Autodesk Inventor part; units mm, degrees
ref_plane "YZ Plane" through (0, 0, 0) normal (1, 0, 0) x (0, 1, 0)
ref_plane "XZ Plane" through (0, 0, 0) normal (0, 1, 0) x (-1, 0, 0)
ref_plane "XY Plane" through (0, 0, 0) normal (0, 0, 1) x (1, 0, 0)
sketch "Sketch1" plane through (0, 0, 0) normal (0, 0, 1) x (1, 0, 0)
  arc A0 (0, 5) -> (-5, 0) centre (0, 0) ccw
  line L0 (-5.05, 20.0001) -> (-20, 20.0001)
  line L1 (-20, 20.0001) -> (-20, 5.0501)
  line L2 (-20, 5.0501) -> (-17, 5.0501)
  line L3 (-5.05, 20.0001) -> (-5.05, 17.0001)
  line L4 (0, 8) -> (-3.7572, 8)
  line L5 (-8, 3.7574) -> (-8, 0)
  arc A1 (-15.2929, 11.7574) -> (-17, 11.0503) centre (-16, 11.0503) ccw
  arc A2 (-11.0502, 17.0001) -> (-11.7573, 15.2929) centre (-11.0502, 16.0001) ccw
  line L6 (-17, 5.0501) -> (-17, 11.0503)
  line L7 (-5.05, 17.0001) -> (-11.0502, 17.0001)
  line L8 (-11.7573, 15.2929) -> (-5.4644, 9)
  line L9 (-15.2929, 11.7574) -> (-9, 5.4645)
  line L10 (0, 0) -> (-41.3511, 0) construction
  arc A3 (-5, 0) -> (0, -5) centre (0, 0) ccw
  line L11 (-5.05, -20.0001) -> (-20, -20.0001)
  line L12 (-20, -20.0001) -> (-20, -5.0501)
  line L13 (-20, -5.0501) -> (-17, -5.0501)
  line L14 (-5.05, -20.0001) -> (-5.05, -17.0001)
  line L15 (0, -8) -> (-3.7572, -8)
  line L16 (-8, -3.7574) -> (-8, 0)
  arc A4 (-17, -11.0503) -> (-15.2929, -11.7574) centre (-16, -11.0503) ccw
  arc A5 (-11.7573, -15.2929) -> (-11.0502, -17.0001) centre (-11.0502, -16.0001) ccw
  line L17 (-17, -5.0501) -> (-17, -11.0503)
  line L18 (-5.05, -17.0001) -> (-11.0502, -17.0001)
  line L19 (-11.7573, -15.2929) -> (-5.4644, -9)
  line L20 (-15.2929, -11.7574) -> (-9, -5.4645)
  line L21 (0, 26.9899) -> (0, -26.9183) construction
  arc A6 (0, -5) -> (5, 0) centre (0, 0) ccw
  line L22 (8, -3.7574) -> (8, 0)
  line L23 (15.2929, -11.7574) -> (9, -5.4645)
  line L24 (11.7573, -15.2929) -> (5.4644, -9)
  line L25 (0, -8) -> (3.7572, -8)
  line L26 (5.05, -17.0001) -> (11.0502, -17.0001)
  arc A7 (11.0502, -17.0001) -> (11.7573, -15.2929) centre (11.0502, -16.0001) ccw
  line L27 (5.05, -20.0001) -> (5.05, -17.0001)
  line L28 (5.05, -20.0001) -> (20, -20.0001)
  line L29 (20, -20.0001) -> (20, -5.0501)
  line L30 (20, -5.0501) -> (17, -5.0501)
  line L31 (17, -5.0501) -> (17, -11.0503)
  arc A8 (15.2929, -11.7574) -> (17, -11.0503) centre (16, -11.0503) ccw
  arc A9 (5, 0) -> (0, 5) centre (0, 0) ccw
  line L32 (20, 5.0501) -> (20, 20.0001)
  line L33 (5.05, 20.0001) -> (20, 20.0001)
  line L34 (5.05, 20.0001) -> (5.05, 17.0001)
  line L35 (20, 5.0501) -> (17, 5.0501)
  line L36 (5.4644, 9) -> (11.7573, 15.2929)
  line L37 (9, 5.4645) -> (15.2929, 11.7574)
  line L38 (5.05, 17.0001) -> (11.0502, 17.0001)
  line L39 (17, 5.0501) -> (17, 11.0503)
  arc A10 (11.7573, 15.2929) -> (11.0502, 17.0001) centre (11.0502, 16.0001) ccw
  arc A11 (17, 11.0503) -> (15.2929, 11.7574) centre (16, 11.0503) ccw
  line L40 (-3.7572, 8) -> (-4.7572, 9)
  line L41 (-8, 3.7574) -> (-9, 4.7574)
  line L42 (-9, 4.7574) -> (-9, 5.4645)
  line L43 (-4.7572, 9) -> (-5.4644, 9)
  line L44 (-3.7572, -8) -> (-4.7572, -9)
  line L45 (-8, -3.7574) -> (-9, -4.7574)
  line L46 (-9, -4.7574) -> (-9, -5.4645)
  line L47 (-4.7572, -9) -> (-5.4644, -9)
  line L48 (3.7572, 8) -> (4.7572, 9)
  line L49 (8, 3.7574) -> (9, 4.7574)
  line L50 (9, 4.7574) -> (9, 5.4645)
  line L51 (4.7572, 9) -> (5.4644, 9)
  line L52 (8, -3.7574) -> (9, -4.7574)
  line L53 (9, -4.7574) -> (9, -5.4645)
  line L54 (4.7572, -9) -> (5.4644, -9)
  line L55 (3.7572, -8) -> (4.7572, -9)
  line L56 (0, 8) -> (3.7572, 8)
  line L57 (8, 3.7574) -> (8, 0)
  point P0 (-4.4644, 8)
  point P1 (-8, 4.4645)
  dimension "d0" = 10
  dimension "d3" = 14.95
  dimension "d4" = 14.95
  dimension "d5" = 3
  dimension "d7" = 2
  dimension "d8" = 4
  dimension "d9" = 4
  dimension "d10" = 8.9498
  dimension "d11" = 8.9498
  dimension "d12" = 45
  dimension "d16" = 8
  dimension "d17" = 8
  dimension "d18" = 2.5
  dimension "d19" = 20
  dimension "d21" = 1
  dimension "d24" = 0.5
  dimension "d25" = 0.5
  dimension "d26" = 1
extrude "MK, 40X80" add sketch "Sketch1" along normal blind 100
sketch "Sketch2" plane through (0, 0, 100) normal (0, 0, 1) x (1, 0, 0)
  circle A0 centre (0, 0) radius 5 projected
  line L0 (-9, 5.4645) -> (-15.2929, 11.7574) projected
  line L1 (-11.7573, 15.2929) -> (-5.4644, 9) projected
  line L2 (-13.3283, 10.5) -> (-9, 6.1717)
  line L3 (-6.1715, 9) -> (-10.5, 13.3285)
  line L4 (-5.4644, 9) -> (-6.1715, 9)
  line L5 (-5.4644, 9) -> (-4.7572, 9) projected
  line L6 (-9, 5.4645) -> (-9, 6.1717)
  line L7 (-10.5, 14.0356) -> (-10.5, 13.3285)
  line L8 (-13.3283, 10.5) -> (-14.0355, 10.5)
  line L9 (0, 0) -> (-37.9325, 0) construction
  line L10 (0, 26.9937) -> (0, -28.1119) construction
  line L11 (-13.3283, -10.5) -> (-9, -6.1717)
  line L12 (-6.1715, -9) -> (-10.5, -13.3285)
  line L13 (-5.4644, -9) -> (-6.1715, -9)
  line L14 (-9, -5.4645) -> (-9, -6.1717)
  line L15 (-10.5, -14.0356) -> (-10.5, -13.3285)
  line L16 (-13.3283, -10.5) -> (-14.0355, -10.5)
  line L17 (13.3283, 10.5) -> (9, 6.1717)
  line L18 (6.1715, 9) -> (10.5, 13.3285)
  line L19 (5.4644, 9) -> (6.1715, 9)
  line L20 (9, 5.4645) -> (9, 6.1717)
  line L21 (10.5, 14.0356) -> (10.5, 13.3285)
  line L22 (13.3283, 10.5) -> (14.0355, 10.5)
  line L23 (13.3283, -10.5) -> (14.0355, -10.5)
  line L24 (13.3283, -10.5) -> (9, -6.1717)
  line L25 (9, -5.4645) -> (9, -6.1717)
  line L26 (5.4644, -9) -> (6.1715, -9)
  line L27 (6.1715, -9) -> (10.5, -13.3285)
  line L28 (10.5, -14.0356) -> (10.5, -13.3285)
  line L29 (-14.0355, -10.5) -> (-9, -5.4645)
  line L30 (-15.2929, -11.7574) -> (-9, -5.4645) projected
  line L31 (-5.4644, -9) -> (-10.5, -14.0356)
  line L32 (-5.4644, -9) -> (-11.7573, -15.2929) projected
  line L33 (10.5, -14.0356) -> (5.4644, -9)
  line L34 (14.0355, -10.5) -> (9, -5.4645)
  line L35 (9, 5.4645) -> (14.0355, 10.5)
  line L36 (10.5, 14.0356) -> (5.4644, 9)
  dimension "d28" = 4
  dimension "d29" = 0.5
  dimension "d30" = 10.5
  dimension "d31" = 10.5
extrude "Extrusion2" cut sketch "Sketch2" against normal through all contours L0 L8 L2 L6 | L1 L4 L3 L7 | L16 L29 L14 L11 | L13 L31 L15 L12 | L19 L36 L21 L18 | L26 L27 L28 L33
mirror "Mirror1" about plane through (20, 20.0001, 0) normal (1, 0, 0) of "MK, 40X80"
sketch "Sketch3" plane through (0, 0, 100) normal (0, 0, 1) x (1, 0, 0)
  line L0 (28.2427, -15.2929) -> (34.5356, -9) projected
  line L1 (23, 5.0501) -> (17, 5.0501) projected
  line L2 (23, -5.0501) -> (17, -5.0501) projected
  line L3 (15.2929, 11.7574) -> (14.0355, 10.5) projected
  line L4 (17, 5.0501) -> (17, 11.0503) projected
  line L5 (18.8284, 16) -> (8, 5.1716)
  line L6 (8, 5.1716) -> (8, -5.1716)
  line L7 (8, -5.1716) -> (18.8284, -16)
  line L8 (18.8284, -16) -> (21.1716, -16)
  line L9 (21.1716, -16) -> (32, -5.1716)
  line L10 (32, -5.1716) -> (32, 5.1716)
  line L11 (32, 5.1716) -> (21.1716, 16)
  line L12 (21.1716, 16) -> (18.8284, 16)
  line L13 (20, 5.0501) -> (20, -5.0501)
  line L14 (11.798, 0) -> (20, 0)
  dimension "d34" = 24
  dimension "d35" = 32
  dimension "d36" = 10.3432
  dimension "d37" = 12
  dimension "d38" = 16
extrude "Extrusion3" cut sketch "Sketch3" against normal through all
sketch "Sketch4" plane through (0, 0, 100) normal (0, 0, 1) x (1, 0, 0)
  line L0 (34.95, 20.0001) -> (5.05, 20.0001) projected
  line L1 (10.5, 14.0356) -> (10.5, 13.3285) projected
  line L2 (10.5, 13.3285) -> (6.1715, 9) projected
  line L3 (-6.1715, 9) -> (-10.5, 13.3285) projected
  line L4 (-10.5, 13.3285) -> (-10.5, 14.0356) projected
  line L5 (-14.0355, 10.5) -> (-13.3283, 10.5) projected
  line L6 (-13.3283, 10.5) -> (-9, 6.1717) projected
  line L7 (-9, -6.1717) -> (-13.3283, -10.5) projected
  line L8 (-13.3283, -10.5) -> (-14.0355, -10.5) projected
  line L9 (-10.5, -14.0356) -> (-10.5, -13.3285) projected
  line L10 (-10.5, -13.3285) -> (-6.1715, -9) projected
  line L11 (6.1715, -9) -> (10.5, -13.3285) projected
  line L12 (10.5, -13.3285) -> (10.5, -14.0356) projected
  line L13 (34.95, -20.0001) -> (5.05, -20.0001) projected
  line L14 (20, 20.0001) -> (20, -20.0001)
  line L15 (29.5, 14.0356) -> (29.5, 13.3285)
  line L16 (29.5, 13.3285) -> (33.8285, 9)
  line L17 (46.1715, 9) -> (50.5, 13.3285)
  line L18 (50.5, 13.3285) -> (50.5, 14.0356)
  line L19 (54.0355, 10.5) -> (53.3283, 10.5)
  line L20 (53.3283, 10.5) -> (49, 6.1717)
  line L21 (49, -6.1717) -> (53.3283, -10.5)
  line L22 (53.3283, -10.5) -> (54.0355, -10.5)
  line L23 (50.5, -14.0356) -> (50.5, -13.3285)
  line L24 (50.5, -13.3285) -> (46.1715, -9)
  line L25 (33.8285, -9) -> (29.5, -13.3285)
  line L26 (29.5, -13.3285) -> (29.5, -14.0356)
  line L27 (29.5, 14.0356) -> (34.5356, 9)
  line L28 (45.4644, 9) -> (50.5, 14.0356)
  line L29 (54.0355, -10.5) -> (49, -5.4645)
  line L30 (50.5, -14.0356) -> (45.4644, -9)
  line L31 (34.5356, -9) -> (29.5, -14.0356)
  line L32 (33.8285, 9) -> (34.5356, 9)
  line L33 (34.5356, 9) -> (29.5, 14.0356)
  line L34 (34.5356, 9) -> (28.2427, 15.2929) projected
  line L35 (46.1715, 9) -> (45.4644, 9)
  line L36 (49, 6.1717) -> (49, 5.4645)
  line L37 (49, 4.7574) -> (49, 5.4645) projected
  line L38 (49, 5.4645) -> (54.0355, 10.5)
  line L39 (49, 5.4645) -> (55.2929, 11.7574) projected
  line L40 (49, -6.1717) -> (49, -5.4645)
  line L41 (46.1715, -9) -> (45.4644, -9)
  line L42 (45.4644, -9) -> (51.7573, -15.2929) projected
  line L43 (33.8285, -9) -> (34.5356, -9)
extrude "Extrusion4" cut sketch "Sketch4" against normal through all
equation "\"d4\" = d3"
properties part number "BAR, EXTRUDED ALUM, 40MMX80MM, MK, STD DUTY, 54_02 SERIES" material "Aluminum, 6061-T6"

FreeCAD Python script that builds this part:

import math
import FreeCAD as App
import Part
import Sketcher
from FreeCAD import Vector

doc = App.newDocument("Part")
params = doc.addObject("Spreadsheet::Sheet", "Params")
for row, (alias, value) in enumerate([
    ("sketch1_diameter", "10 mm"),
    ("sketch1_radius", "1 mm"),
    ("sketch1_width", "3 mm"),
    ("sketch1_width2", "14.95 mm"),
    ("pad1_length", "100 mm"),
], start=1):
    params.set(f"A{row}", alias)
    params.set(f"B{row}", "=" + value)
    params.setAlias(f"B{row}", alias)

body = doc.addObject("PartDesign::Body", "Body")

# Sketch on XY plane
sketch1 = body.newObject("Sketcher::SketchObject", "Sketch")
sketch1.AttachmentSupport = (doc.getObject("XY_Plane"), [""])
sketch1.MapMode = "FlatFace"
sketch1.addGeometry(Part.LineSegment(Vector(-5.05, 17.0001, 0), Vector(-5.05, 20.0001, 0)), False)
sketch1.addGeometry(Part.LineSegment(Vector(-5.05, 20.0001, 0), Vector(-20, 20.0001, 0)), False)
sketch1.addGeometry(Part.LineSegment(Vector(-20, 20.0001, 0), Vector(-20, 5.0501, 0)), False)
sketch1.addGeometry(Part.LineSegment(Vector(-20, 5.0501, 0), Vector(-17, 5.0501, 0)), False)
sketch1.addGeometry(Part.LineSegment(Vector(-17, 5.0501, 0), Vector(-17, 11.0503, 0)), False)
sketch1.addGeometry(Part.ArcOfCircle(Part.Circle(Vector(-16, 11.0503, 0), Vector(0, 0, 1), 0.99999), math.radians(45), math.radians(180)), False)
sketch1.addGeometry(Part.LineSegment(Vector(-15.2929, 11.7574, 0), Vector(-9, 5.4645, 0)), False)
sketch1.addGeometry(Part.LineSegment(Vector(-9, 5.4645, 0), Vector(-9, 4.7574, 0)), False)
sketch1.addGeometry(Part.LineSegment(Vector(-9, 4.7574, 0), Vector(-8, 3.7574, 0)), False)
sketch1.addGeometry(Part.LineSegment(Vector(-8, 3.7574, 0), Vector(-8, -3.7574, 0)), False)
sketch1.addGeometry(Part.LineSegment(Vector(-8, -3.7574, 0), Vector(-9, -4.7574, 0)), False)
sketch1.addGeometry(Part.LineSegment(Vector(-9, -4.7574, 0), Vector(-9, -5.4645, 0)), False)
sketch1.addGeometry(Part.LineSegment(Vector(-9, -5.4645, 0), Vector(-15.2929, -11.7574, 0)), False)
sketch1.addGeometry(Part.ArcOfCircle(Part.Circle(Vector(-16, -11.0503, 0), Vector(0, 0, 1), 1), math.radians(180), math.radians(315)), False)
sketch1.addGeometry(Part.LineSegment(Vector(-17, -11.0503, 0), Vector(-17, -5.0501, 0)), False)
sketch1.addGeometry(Part.LineSegment(Vector(-17, -5.0501, 0), Vector(-20, -5.0501, 0)), False)
sketch1.addGeometry(Part.LineSegment(Vector(-20, -5.0501, 0), Vector(-20, -20.0001, 0)), False)
sketch1.addGeometry(Part.LineSegment(Vector(-20, -20.0001, 0), Vector(-5.05, -20.0001, 0)), False)
sketch1.addGeometry(Part.LineSegment(Vector(-5.05, -20.0001, 0), Vector(-5.05, -17.0001, 0)), False)
sketch1.addGeometry(Part.LineSegment(Vector(-5.05, -17.0001, 0), Vector(-11.0502, -17.0001, 0)), False)
sketch1.addGeometry(Part.ArcOfCircle(Part.Circle(Vector(-11.0502, -16.0001, 0), Vector(0, 0, 1), 1.000061), math.radians(134.995949), math.radians(270)), False)
sketch1.addGeometry(Part.LineSegment(Vector(-11.7573, -15.2929, 0), Vector(-5.4644, -9, 0)), False)
sketch1.addGeometry(Part.LineSegment(Vector(-5.4644, -9, 0), Vector(-4.7572, -9, 0)), False)
sketch1.addGeometry(Part.LineSegment(Vector(-4.7572, -9, 0), Vector(-3.7572, -8, 0)), False)
sketch1.addGeometry(Part.LineSegment(Vector(-3.7572, -8, 0), Vector(3.7572, -8, 0)), False)
sketch1.addGeometry(Part.LineSegment(Vector(3.7572, -8, 0), Vector(4.7572, -9, 0)), False)
sketch1.addGeometry(Part.LineSegment(Vector(4.7572, -9, 0), Vector(5.4644, -9, 0)), False)
sketch1.addGeometry(Part.LineSegment(Vector(5.4644, -9, 0), Vector(11.7573, -15.2929, 0)), False)
sketch1.addGeometry(Part.ArcOfCircle(Part.Circle(Vector(11.0502, -16.0001, 0), Vector(0, 0, 1), 1), math.radians(-90), math.radians(45.004051)), False)
sketch1.addGeometry(Part.LineSegment(Vector(11.0502, -17.0001, 0), Vector(5.05, -17.0001, 0)), False)
sketch1.addGeometry(Part.LineSegment(Vector(5.05, -17.0001, 0), Vector(5.05, -20.0001, 0)), False)
sketch1.addGeometry(Part.LineSegment(Vector(5.05, -20.0001, 0), Vector(20, -20.0001, 0)), False)
sketch1.addGeometry(Part.LineSegment(Vector(20, -20.0001, 0), Vector(20, -5.0501, 0)), False)
sketch1.addGeometry(Part.LineSegment(Vector(20, -5.0501, 0), Vector(17, -5.0501, 0)), False)
sketch1.addGeometry(Part.LineSegment(Vector(17, -5.0501, 0), Vector(17, -11.0503, 0)), False)
sketch1.addGeometry(Part.ArcOfCircle(Part.Circle(Vector(16, -11.0503, 0), Vector(0, 0, 1), 0.99999), math.radians(-135), math.radians(0)), False)
sketch1.addGeometry(Part.LineSegment(Vector(15.2929, -11.7574, 0), Vector(9, -5.4645, 0)), False)
sketch1.addGeometry(Part.LineSegment(Vector(9, -5.4645, 0), Vector(9, -4.7574, 0)), False)
sketch1.addGeometry(Part.LineSegment(Vector(9, -4.7574, 0), Vector(8, -3.7574, 0)), False)
sketch1.addGeometry(Part.LineSegment(Vector(8, -3.7574, 0), Vector(8, 3.7574, 0)), False)
sketch1.addGeometry(Part.LineSegment(Vector(8, 3.7574, 0), Vector(9, 4.7574, 0)), False)
sketch1.addGeometry(Part.LineSegment(Vector(9, 4.7574, 0), Vector(9, 5.4645, 0)), False)
sketch1.addGeometry(Part.LineSegment(Vector(9, 5.4645, 0), Vector(15.2929, 11.7574, 0)), False)
sketch1.addGeometry(Part.ArcOfCircle(Part.Circle(Vector(16, 11.0503, 0), Vector(0, 0, 1), 1), math.radians(0), math.radians(135)), False)
sketch1.addGeometry(Part.LineSegment(Vector(17, 11.0503, 0), Vector(17, 5.0501, 0)), False)
sketch1.addGeometry(Part.LineSegment(Vector(17, 5.0501, 0), Vector(20, 5.0501, 0)), False)
sketch1.addGeometry(Part.LineSegment(Vector(20, 5.0501, 0), Vector(20, 20.0001, 0)), False)
sketch1.addGeometry(Part.LineSegment(Vector(20, 20.0001, 0), Vector(5.05, 20.0001, 0)), False)
sketch1.addGeometry(Part.LineSegment(Vector(5.05, 20.0001, 0), Vector(5.05, 17.0001, 0)), False)
sketch1.addGeometry(Part.LineSegment(Vector(5.05, 17.0001, 0), Vector(11.0502, 17.0001, 0)), False)
sketch1.addGeometry(Part.ArcOfCircle(Part.Circle(Vector(11.0502, 16.0001, 0), Vector(0, 0, 1), 1.000061), math.radians(-45.004051), math.radians(90)), False)
sketch1.addGeometry(Part.LineSegment(Vector(11.7573, 15.2929, 0), Vector(5.4644, 9, 0)), False)
sketch1.addGeometry(Part.LineSegment(Vector(5.4644, 9, 0), Vector(4.7572, 9, 0)), False)
sketch1.addGeometry(Part.LineSegment(Vector(4.7572, 9, 0), Vector(3.7572, 8, 0)), False)
sketch1.addGeometry(Part.LineSegment(Vector(3.7572, 8, 0), Vector(-3.7572, 8, 0)), False)
sketch1.addGeometry(Part.LineSegment(Vector(-3.7572, 8, 0), Vector(-4.7572, 9, 0)), False)
sketch1.addGeometry(Part.LineSegment(Vector(-4.7572, 9, 0), Vector(-5.4644, 9, 0)), False)
sketch1.addGeometry(Part.LineSegment(Vector(-5.4644, 9, 0), Vector(-11.7573, 15.2929, 0)), False)
sketch1.addGeometry(Part.ArcOfCircle(Part.Circle(Vector(-11.0502, 16.0001, 0), Vector(0, 0, 1), 1), math.radians(90), math.radians(225.004051)), False)
sketch1.addGeometry(Part.LineSegment(Vector(-11.0502, 17.0001, 0), Vector(-5.05, 17.0001, 0)), False)
sketch1.addGeometry(Part.Circle(Vector(0, 0, 0), Vector(0, 0, 1), 5), False)
sketch1.addConstraint(Sketcher.Constraint("Coincident", 0, 2, 1, 1))
sketch1.addConstraint(Sketcher.Constraint("Coincident", 1, 2, 2, 1))
sketch1.addConstraint(Sketcher.Constraint("Coincident", 2, 2, 3, 1))
sketch1.addConstraint(Sketcher.Constraint("Coincident", 3, 2, 4, 1))
sketch1.addConstraint(Sketcher.Constraint("Tangent", 4, 2, 5, 2))
sketch1.addConstraint(Sketcher.Constraint("Tangent", 5, 1, 6, 1))
sketch1.addConstraint(Sketcher.Constraint("Coincident", 6, 2, 7, 1))
sketch1.addConstraint(Sketcher.Constraint("Coincident", 7, 2, 8, 1))
sketch1.addConstraint(Sketcher.Constraint("Coincident", 8, 2, 9, 1))
sketch1.addConstraint(Sketcher.Constraint("Coincident", 9, 2, 10, 1))
sketch1.addConstraint(Sketcher.Constraint("Coincident", 10, 2, 11, 1))
sketch1.addConstraint(Sketcher.Constraint("Coincident", 11, 2, 12, 1))
sketch1.addConstraint(Sketcher.Constraint("Tangent", 12, 2, 13, 2))
sketch1.addConstraint(Sketcher.Constraint("Tangent", 13, 1, 14, 1))
sketch1.addConstraint(Sketcher.Constraint("Coincident", 14, 2, 15, 1))
sketch1.addConstraint(Sketcher.Constraint("Coincident", 15, 2, 16, 1))
sketch1.addConstraint(Sketcher.Constraint("Coincident", 16, 2, 17, 1))
sketch1.addConstraint(Sketcher.Constraint("Coincident", 17, 2, 18, 1))
sketch1.addConstraint(Sketcher.Constraint("Coincident", 18, 2, 19, 1))
sketch1.addConstraint(Sketcher.Constraint("Tangent", 19, 2, 20, 2))
sketch1.addConstraint(Sketcher.Constraint("Tangent", 20, 1, 21, 1))
sketch1.addConstraint(Sketcher.Constraint("Coincident", 21, 2, 22, 1))
sketch1.addConstraint(Sketcher.Constraint("Coincident", 22, 2, 23, 1))
sketch1.addConstraint(Sketcher.Constraint("Coincident", 23, 2, 24, 1))
sketch1.addConstraint(Sketcher.Constraint("Coincident", 24, 2, 25, 1))
sketch1.addConstraint(Sketcher.Constraint("Coincident", 25, 2, 26, 1))
sketch1.addConstraint(Sketcher.Constraint("Coincident", 26, 2, 27, 1))
sketch1.addConstraint(Sketcher.Constraint("Tangent", 27, 2, 28, 2))
sketch1.addConstraint(Sketcher.Constraint("Tangent", 28, 1, 29, 1))
sketch1.addConstraint(Sketcher.Constraint("Coincident", 29, 2, 30, 1))
sketch1.addConstraint(Sketcher.Constraint("Coincident", 30, 2, 31, 1))
sketch1.addConstraint(Sketcher.Constraint("Coincident", 31, 2, 32, 1))
sketch1.addConstraint(Sketcher.Constraint("Coincident", 32, 2, 33, 1))
sketch1.addConstraint(Sketcher.Constraint("Coincident", 33, 2, 34, 1))
sketch1.addConstraint(Sketcher.Constraint("Tangent", 34, 2, 35, 2))
sketch1.addConstraint(Sketcher.Constraint("Tangent", 35, 1, 36, 1))
sketch1.addConstraint(Sketcher.Constraint("Coincident", 36, 2, 37, 1))
sketch1.addConstraint(Sketcher.Constraint("Coincident", 37, 2, 38, 1))
sketch1.addConstraint(Sketcher.Constraint("Coincident", 38, 2, 39, 1))
sketch1.addConstraint(Sketcher.Constraint("Coincident", 39, 2, 40, 1))
sketch1.addConstraint(Sketcher.Constraint("Coincident", 40, 2, 41, 1))
sketch1.addConstraint(Sketcher.Constraint("Coincident", 41, 2, 42, 1))
sketch1.addConstraint(Sketcher.Constraint("Tangent", 42, 2, 43, 2))
sketch1.addConstraint(Sketcher.Constraint("Tangent", 43, 1, 44, 1))
sketch1.addConstraint(Sketcher.Constraint("Coincident", 44, 2, 45, 1))
sketch1.addConstraint(Sketcher.Constraint("Coincident", 45, 2, 46, 1))
sketch1.addConstraint(Sketcher.Constraint("Coincident", 46, 2, 47, 1))
sketch1.addConstraint(Sketcher.Constraint("Coincident", 47, 2, 48, 1))
sketch1.addConstraint(Sketcher.Constraint("Coincident", 48, 2, 49, 1))
sketch1.addConstraint(Sketcher.Constraint("Tangent", 49, 2, 50, 2))
sketch1.addConstraint(Sketcher.Constraint("Tangent", 50, 1, 51, 1))
sketch1.addConstraint(Sketcher.Constraint("Coincident", 51, 2, 52, 1))
sketch1.addConstraint(Sketcher.Constraint("Coincident", 52, 2, 53, 1))
sketch1.addConstraint(Sketcher.Constraint("Coincident", 53, 2, 54, 1))
sketch1.addConstraint(Sketcher.Constraint("Coincident", 54, 2, 55, 1))
sketch1.addConstraint(Sketcher.Constraint("Coincident", 55, 2, 56, 1))
sketch1.addConstraint(Sketcher.Constraint("Coincident", 56, 2, 57, 1))
sketch1.addConstraint(Sketcher.Constraint("Tangent", 57, 2, 58, 2))
sketch1.addConstraint(Sketcher.Constraint("Tangent", 58, 1, 59, 1))
sketch1.addConstraint(Sketcher.Constraint("Coincident", 59, 2, 0, 1))
sketch1.addConstraint(Sketcher.Constraint("Vertical", 0))
sketch1.addConstraint(Sketcher.Constraint("Horizontal", 1))
sketch1.addConstraint(Sketcher.Constraint("Vertical", 2))
sketch1.addConstraint(Sketcher.Constraint("Horizontal", 3))
sketch1.addConstraint(Sketcher.Constraint("Vertical", 4))
sketch1.addConstraint(Sketcher.Constraint("Vertical", 7))
sketch1.addConstraint(Sketcher.Constraint("Vertical", 9))
sketch1.addConstraint(Sketcher.Constraint("Vertical", 11))
sketch1.addConstraint(Sketcher.Constraint("Vertical", 14))
sketch1.addConstraint(Sketcher.Constraint("Horizontal", 15))
sketch1.addConstraint(Sketcher.Constraint("Vertical", 16))
sketch1.addConstraint(Sketcher.Constraint("Horizontal", 17))
sketch1.addConstraint(Sketcher.Constraint("Vertical", 18))
sketch1.addConstraint(Sketcher.Constraint("Horizontal", 19))
sketch1.addConstraint(Sketcher.Constraint("Horizontal", 22))
sketch1.addConstraint(Sketcher.Constraint("Horizontal", 24))
sketch1.addConstraint(Sketcher.Constraint("Horizontal", 26))
sketch1.addConstraint(Sketcher.Constraint("Horizontal", 29))
sketch1.addConstraint(Sketcher.Constraint("Vertical", 30))
sketch1.addConstraint(Sketcher.Constraint("Horizontal", 31))
sketch1.addConstraint(Sketcher.Constraint("Vertical", 32))
sketch1.addConstraint(Sketcher.Constraint("Horizontal", 33))
sketch1.addConstraint(Sketcher.Constraint("Vertical", 34))
sketch1.addConstraint(Sketcher.Constraint("Vertical", 37))
sketch1.addConstraint(Sketcher.Constraint("Vertical", 39))
sketch1.addConstraint(Sketcher.Constraint("Vertical", 41))
sketch1.addConstraint(Sketcher.Constraint("Vertical", 44))
sketch1.addConstraint(Sketcher.Constraint("Horizontal", 45))
sketch1.addConstraint(Sketcher.Constraint("Vertical", 46))
sketch1.addConstraint(Sketcher.Constraint("Horizontal", 47))
sketch1.addConstraint(Sketcher.Constraint("Vertical", 48))
sketch1.addConstraint(Sketcher.Constraint("Horizontal", 49))
sketch1.addConstraint(Sketcher.Constraint("Horizontal", 52))
sketch1.addConstraint(Sketcher.Constraint("Horizontal", 54))
sketch1.addConstraint(Sketcher.Constraint("Horizontal", 56))
sketch1.addConstraint(Sketcher.Constraint("Horizontal", 59))
sketch1.addConstraint(Sketcher.Constraint("Coincident", 60, 3, -1, 1))
sketch1.addConstraint(Sketcher.Constraint("Equal", 5, 13))
sketch1.addConstraint(Sketcher.Constraint("Equal", 13, 20))
sketch1.addConstraint(Sketcher.Constraint("Equal", 20, 28))
sketch1.addConstraint(Sketcher.Constraint("Equal", 28, 35))
sketch1.addConstraint(Sketcher.Constraint("Equal", 35, 43))
sketch1.addConstraint(Sketcher.Constraint("Equal", 43, 50))
sketch1.addConstraint(Sketcher.Constraint("Equal", 50, 58))
sketch1.addConstraint(Sketcher.Constraint("Symmetric", 5, 3, 35, 3, -1, 1))
sketch1.addConstraint(Sketcher.Constraint("Symmetric", 13, 3, 43, 3, -1, 1))
sketch1.addConstraint(Sketcher.Constraint("Symmetric", 20, 3, 50, 3, -1, 1))
sketch1.addConstraint(Sketcher.Constraint("Symmetric", 28, 3, 58, 3, -1, 1))
sketch1.addConstraint(Sketcher.Constraint("Symmetric", 0, 2, 30, 2, -1, 1))
sketch1.addConstraint(Sketcher.Constraint("Symmetric", 2, 2, 32, 2, -1, 1))
sketch1.addConstraint(Sketcher.Constraint("Symmetric", 6, 2, 36, 2, -1, 1))
sketch1.addConstraint(Sketcher.Constraint("Symmetric", 8, 2, 38, 2, -1, 1))
sketch1.addConstraint(Sketcher.Constraint("Symmetric", 10, 2, 40, 2, -1, 1))
sketch1.addConstraint(Sketcher.Constraint("Symmetric", 15, 2, 45, 2, -1, 1))
sketch1.addConstraint(Sketcher.Constraint("Symmetric", 17, 2, 47, 2, -1, 1))
sketch1.addConstraint(Sketcher.Constraint("Symmetric", 21, 2, 51, 2, -1, 1))
sketch1.addConstraint(Sketcher.Constraint("Symmetric", 23, 2, 53, 2, -1, 1))
sketch1.addConstraint(Sketcher.Constraint("Symmetric", 25, 2, 55, 2, -1, 1))
sketch1.addConstraint(Sketcher.Constraint("Symmetric", 20, 3, 28, 3, -2))
sketch1.addConstraint(Sketcher.Constraint("Symmetric", 13, 3, 35, 3, -2))
sketch1.addConstraint(Sketcher.Constraint("Symmetric", 22, 2, 25, 2, -2))
sketch1.addConstraint(Sketcher.Constraint("Symmetric", 17, 2, 30, 2, -2))
sketch1.addConstraint(Sketcher.Constraint("Symmetric", 15, 2, 32, 2, -2))
sketch1.addConstraint(Sketcher.Constraint("Symmetric", 11, 2, 36, 2, -2))
sketch1.addConstraint(Sketcher.Constraint("Parallel", 6, 8))
sketch1.addConstraint(Sketcher.Constraint("Perpendicular", 8, 10))
sketch1.addConstraint(Sketcher.Constraint("Parallel", 10, 12))
sketch1.addConstraint(Sketcher.Constraint("Parallel", 12, 21))
sketch1.addConstraint(Sketcher.Constraint("Parallel", 21, 23))
sketch1.addConstraint(Sketcher.Constraint("Perpendicular", 23, 25))
sketch1.addConstraint(Sketcher.Constraint("Parallel", 25, 27))
sketch1.addConstraint(Sketcher.Constraint("Parallel", 36, 38))
sketch1.addConstraint(Sketcher.Constraint("Perpendicular", 38, 40))
sketch1.addConstraint(Sketcher.Constraint("Parallel", 40, 42))
sketch1.addConstraint(Sketcher.Constraint("Parallel", 51, 53))
sketch1.addConstraint(Sketcher.Constraint("Perpendicular", 53, 55))
sketch1.addConstraint(Sketcher.Constraint("Parallel", 55, 57))
sketch1.addConstraint(Sketcher.Constraint("Horizontal", 10, 2, 37, 2))
sketch1.addConstraint(Sketcher.Constraint("Equal", 45, 0))
sketch1.addConstraint(Sketcher.Constraint("Equal", 47, 2))
sketch1.addConstraint(Sketcher.Constraint("Equal", 59, 4))
sketch1.addConstraint(Sketcher.Constraint("Equal", 56, 7))
sketch1.addConstraint(Sketcher.Constraint("Equal", 12, 21))
sketch1.addConstraint(Sketcher.Constraint("Equal", 10, 23))
sketch1.addConstraint(Sketcher.Constraint("Diameter", 60, 10.0))
sketch1.addConstraint(Sketcher.Constraint("Radius", 5, 1.0))
sketch1.addConstraint(Sketcher.Constraint("DistanceX", 3, 1, 3, 2, 3.0))
sketch1.addConstraint(Sketcher.Constraint("DistanceY", -1, 1, 0, 2, 20.0))
sketch1.addConstraint(Sketcher.Constraint("DistanceX", 1, 2, -1, 1, 20.0))
sketch1.addConstraint(Sketcher.Constraint("DistanceX", 8, 2, -1, 1, 8.0))
sketch1.addConstraint(Sketcher.Constraint("DistanceX", 1, 2, 1, 1, 14.95))
sketch1.addConstraint(Sketcher.Constraint("DistanceX", 6, 2, -1, 1, 9.0))
sketch1.addConstraint(Sketcher.Constraint("DistanceY", 7, 2, 7, 1, 0.707))
sketch1.addConstraint(Sketcher.Constraint("DistanceX", 19, 2, 19, 1, 6.0002))
sketch1.setExpression("Constraints[144]", "Params.sketch1_diameter")
sketch1.setExpression("Constraints[145]", "Params.sketch1_radius")
sketch1.setExpression("Constraints[146]", "Params.sketch1_width")
sketch1.setExpression("Constraints[150]", "Params.sketch1_width2")
pad1 = body.newObject("PartDesign::Pad", "Pad")
pad1.Profile = sketch1
pad1.setExpression("Length", "Params.pad1_length")

# Sketch on XY plane
sketch2 = body.newObject("Sketcher::SketchObject", "Sketch001")
sketch2.AttachmentSupport = (doc.getObject("XY_Plane"), [""])
sketch2.MapMode = "FlatFace"
sketch2.AttachmentOffset = App.Placement(Vector(0, 0, 100), App.Rotation())
sketch2.addGeometry(Part.LineSegment(Vector(-14.0355, 10.5, 0), Vector(-9, 5.4645, 0)), False)
sketch2.addGeometry(Part.LineSegment(Vector(-9, 5.4645, 0), Vector(-9, 6.1717, 0)), False)
sketch2.addGeometry(Part.LineSegment(Vector(-9, 6.1717, 0), Vector(-13.3283, 10.5, 0)), False)
sketch2.addGeometry(Part.LineSegment(Vector(-13.3283, 10.5, 0), Vector(-14.0355, 10.5, 0)), False)
sketch2.addGeometry(Part.LineSegment(Vector(-5.4644, 9, 0), Vector(-10.5, 14.0356, 0)), False)
sketch2.addGeometry(Part.LineSegment(Vector(-10.5, 14.0356, 0), Vector(-10.5, 13.3285, 0)), False)
sketch2.addGeometry(Part.LineSegment(Vector(-10.5, 13.3285, 0), Vector(-6.1715, 9, 0)), False)
sketch2.addGeometry(Part.LineSegment(Vector(-6.1715, 9, 0), Vector(-5.4644, 9, 0)), False)
sketch2.addGeometry(Part.LineSegment(Vector(-14.0355, -10.5, 0), Vector(-13.3283, -10.5, 0)), False)
sketch2.addGeometry(Part.LineSegment(Vector(-13.3283, -10.5, 0), Vector(-9, -6.1717, 0)), False)
sketch2.addGeometry(Part.LineSegment(Vector(-9, -6.1717, 0), Vector(-9, -5.4645, 0)), False)
sketch2.addGeometry(Part.LineSegment(Vector(-9, -5.4645, 0), Vector(-14.0355, -10.5, 0)), False)
sketch2.addGeometry(Part.LineSegment(Vector(-5.4644, -9, 0), Vector(-6.1715, -9, 0)), False)
sketch2.addGeometry(Part.LineSegment(Vector(-6.1715, -9, 0), Vector(-10.5, -13.3285, 0)), False)
sketch2.addGeometry(Part.LineSegment(Vector(-10.5, -13.3285, 0), Vector(-10.5, -14.0356, 0)), False)
sketch2.addGeometry(Part.LineSegment(Vector(-10.5, -14.0356, 0), Vector(-5.4644, -9, 0)), False)
sketch2.addGeometry(Part.LineSegment(Vector(5.4644, 9, 0), Vector(6.1715, 9, 0)), False)
sketch2.addGeometry(Part.LineSegment(Vector(6.1715, 9, 0), Vector(10.5, 13.3285, 0)), False)
sketch2.addGeometry(Part.LineSegment(Vector(10.5, 13.3285, 0), Vector(10.5, 14.0356, 0)), False)
sketch2.addGeometry(Part.LineSegment(Vector(10.5, 14.0356, 0), Vector(5.4644, 9, 0)), False)
sketch2.addGeometry(Part.LineSegment(Vector(6.1715, -9, 0), Vector(5.4644, -9, 0)), False)
sketch2.addGeometry(Part.LineSegment(Vector(5.4644, -9, 0), Vector(10.5, -14.0356, 0)), False)
sketch2.addGeometry(Part.LineSegment(Vector(10.5, -14.0356, 0), Vector(10.5, -13.3285, 0)), False)
sketch2.addGeometry(Part.LineSegment(Vector(10.5, -13.3285, 0), Vector(6.1715, -9, 0)), False)
sketch2.addConstraint(Sketcher.Constraint("Coincident", 0, 2, 1, 1))
sketch2.addConstraint(Sketcher.Constraint("Coincident", 1, 2, 2, 1))
sketch2.addConstraint(Sketcher.Constraint("Coincident", 2, 2, 3, 1))
sketch2.addConstraint(Sketcher.Constraint("Coincident", 3, 2, 0, 1))
sketch2.addConstraint(Sketcher.Constraint("Coincident", 4, 2, 5, 1))
sketch2.addConstraint(Sketcher.Constraint("Coincident", 5, 2, 6, 1))
sketch2.addConstraint(Sketcher.Constraint("Coincident", 6, 2, 7, 1))
sketch2.addConstraint(Sketcher.Constraint("Coincident", 7, 2, 4, 1))
sketch2.addConstraint(Sketcher.Constraint("Coincident", 8, 2, 9, 1))
sketch2.addConstraint(Sketcher.Constraint("Coincident", 9, 2, 10, 1))
sketch2.addConstraint(Sketcher.Constraint("Coincident", 10, 2, 11, 1))
sketch2.addConstraint(Sketcher.Constraint("Coincident", 11, 2, 8, 1))
sketch2.addConstraint(Sketcher.Constraint("Coincident", 12, 2, 13, 1))
sketch2.addConstraint(Sketcher.Constraint("Coincident", 13, 2, 14, 1))
sketch2.addConstraint(Sketcher.Constraint("Coincident", 14, 2, 15, 1))
sketch2.addConstraint(Sketcher.Constraint("Coincident", 15, 2, 12, 1))
sketch2.addConstraint(Sketcher.Constraint("Coincident", 16, 2, 17, 1))
sketch2.addConstraint(Sketcher.Constraint("Coincident", 17, 2, 18, 1))
sketch2.addConstraint(Sketcher.Constraint("Coincident", 18, 2, 19, 1))
sketch2.addConstraint(Sketcher.Constraint("Coincident", 19, 2, 16, 1))
sketch2.addConstraint(Sketcher.Constraint("Coincident", 20, 2, 21, 1))
sketch2.addConstraint(Sketcher.Constraint("Coincident", 21, 2, 22, 1))
sketch2.addConstraint(Sketcher.Constraint("Coincident", 22, 2, 23, 1))
sketch2.addConstraint(Sketcher.Constraint("Coincident", 23, 2, 20, 1))
sketch2.addConstraint(Sketcher.Constraint("Vertical", 1))
sketch2.addConstraint(Sketcher.Constraint("Horizontal", 3))
sketch2.addConstraint(Sketcher.Constraint("Vertical", 5))
sketch2.addConstraint(Sketcher.Constraint("Horizontal", 7))
sketch2.addConstraint(Sketcher.Constraint("Horizontal", 8))
sketch2.addConstraint(Sketcher.Constraint("Vertical", 10))
sketch2.addConstraint(Sketcher.Constraint("Horizontal", 12))
sketch2.addConstraint(Sketcher.Constraint("Vertical", 14))
sketch2.addConstraint(Sketcher.Constraint("Horizontal", 16))
sketch2.addConstraint(Sketcher.Constraint("Vertical", 18))
sketch2.addConstraint(Sketcher.Constraint("Horizontal", 20))
sketch2.addConstraint(Sketcher.Constraint("Vertical", 22))
sketch2.addConstraint(Sketcher.Constraint("Symmetric", 12, 2, 16, 2, -1, 1))
sketch2.addConstraint(Sketcher.Constraint("Symmetric", 13, 2, 17, 2, -1, 1))
sketch2.addConstraint(Sketcher.Constraint("Symmetric", 7, 2, 20, 2, -1, 1))
sketch2.addConstraint(Sketcher.Constraint("Symmetric", 4, 2, 21, 2, -1, 1))
sketch2.addConstraint(Sketcher.Constraint("Symmetric", 6, 2, 16, 2, -2))
sketch2.addConstraint(Sketcher.Constraint("Symmetric", 5, 2, 17, 2, -2))
sketch2.addConstraint(Sketcher.Constraint("Symmetric", 2, 2, 8, 2, -1))
sketch2.addConstraint(Sketcher.Constraint("Symmetric", 1, 2, 9, 2, -1))
sketch2.addConstraint(Sketcher.Constraint("Parallel", 0, 2))
sketch2.addConstraint(Sketcher.Constraint("Parallel", 2, 4))
sketch2.addConstraint(Sketcher.Constraint("Parallel", 4, 6))
sketch2.addConstraint(Sketcher.Constraint("Perpendicular", 6, 9))
sketch2.addConstraint(Sketcher.Constraint("Parallel", 9, 11))
sketch2.addConstraint(Sketcher.Constraint("Parallel", 13, 15))
sketch2.addConstraint(Sketcher.Constraint("Parallel", 17, 19))
sketch2.addConstraint(Sketcher.Constraint("Parallel", 21, 23))
sketch2.addConstraint(Sketcher.Constraint("Horizontal", 4, 2, 18, 2))
sketch2.addConstraint(Sketcher.Constraint("Horizontal", 14, 2, 21, 2))
sketch2.addConstraint(Sketcher.Constraint("Horizontal", 13, 2, 22, 2))
sketch2.addConstraint(Sketcher.Constraint("Vertical", 3, 2, 11, 2))
sketch2.addConstraint(Sketcher.Constraint("Equal", 3, 7))
sketch2.addConstraint(Sketcher.Constraint("Equal", 0, 4))
sketch2.addConstraint(Sketcher.Constraint("DistanceY", -1, 1, 2, 2, 10.5))
sketch2.addConstraint(Sketcher.Constraint("DistanceX", 4, 2, -1, 1, 10.5))
sketch2.addConstraint(Sketcher.Constraint("DistanceX", 0, 2, -1, 1, 9.0))
sketch2.addConstraint(Sketcher.Constraint("DistanceY", -1, 1, 6, 2, 9.0))
sketch2.addConstraint(Sketcher.Constraint("DistanceX", 7, 1, 7, 2, 0.707))
sketch2.addConstraint(Sketcher.Constraint("DistanceY", 1, 2, 4, 2, 7.864))
pocket1 = body.newObject("PartDesign::Pocket", "Pocket")
pocket1.Profile = sketch2
pocket1.Type = "ThroughAll"
doc.recompute()

datumplane = body.newObject("PartDesign::Plane", "DatumPlane")
datumplane.AttachmentSupport = (doc.getObject("YZ_Plane"), [""])
datumplane.MapMode = "FlatFace"
datumplane.AttachmentOffset = App.Placement(Vector(0, 0, 20), App.Rotation())
mirrored = body.newObject("PartDesign::Mirrored", "Mirrored")
mirrored.Originals = [pad1]
mirrored.MirrorPlane = (datumplane, [""])
body.Tip = mirrored

# Sketch on XY plane
sketch3 = body.newObject("Sketcher::SketchObject", "Sketch002")
sketch3.AttachmentSupport = (doc.getObject("XY_Plane"), [""])
sketch3.MapMode = "FlatFace"
sketch3.AttachmentOffset = App.Placement(Vector(0, 0, 100), App.Rotation())
sketch3.addGeometry(Part.LineSegment(Vector(21.1716, 16, 0), Vector(18.8284, 16, 0)), False)
sketch3.addGeometry(Part.LineSegment(Vector(18.8284, 16, 0), Vector(8, 5.1716, 0)), False)
sketch3.addGeometry(Part.LineSegment(Vector(8, 5.1716, 0), Vector(8, -5.1716, 0)), False)
sketch3.addGeometry(Part.LineSegment(Vector(8, -5.1716, 0), Vector(18.8284, -16, 0)), False)
sketch3.addGeometry(Part.LineSegment(Vector(18.8284, -16, 0), Vector(21.1716, -16, 0)), False)
sketch3.addGeometry(Part.LineSegment(Vector(21.1716, -16, 0), Vector(32, -5.1716, 0)), False)
sketch3.addGeometry(Part.LineSegment(Vector(32, -5.1716, 0), Vector(32, 5.1716, 0)), False)
sketch3.addGeometry(Part.LineSegment(Vector(32, 5.1716, 0), Vector(21.1716, 16, 0)), False)
sketch3.addConstraint(Sketcher.Constraint("Coincident", 0, 2, 1, 1))
sketch3.addConstraint(Sketcher.Constraint("Coincident", 1, 2, 2, 1))
sketch3.addConstraint(Sketcher.Constraint("Coincident", 2, 2, 3, 1))
sketch3.addConstraint(Sketcher.Constraint("Coincident", 3, 2, 4, 1))
sketch3.addConstraint(Sketcher.Constraint("Coincident", 4, 2, 5, 1))
sketch3.addConstraint(Sketcher.Constraint("Coincident", 5, 2, 6, 1))
sketch3.addConstraint(Sketcher.Constraint("Coincident", 6, 2, 7, 1))
sketch3.addConstraint(Sketcher.Constraint("Coincident", 7, 2, 0, 1))
sketch3.addConstraint(Sketcher.Constraint("Horizontal", 0))
sketch3.addConstraint(Sketcher.Constraint("Vertical", 2))
sketch3.addConstraint(Sketcher.Constraint("Horizontal", 4))
sketch3.addConstraint(Sketcher.Constraint("Vertical", 6))
sketch3.addConstraint(Sketcher.Constraint("Symmetric", 0, 2, 3, 2, -1))
sketch3.addConstraint(Sketcher.Constraint("Perpendicular", 1, 3))
sketch3.addConstraint(Sketcher.Constraint("Perpendicular", 3, 5))
sketch3.addConstraint(Sketcher.Constraint("Perpendicular", 5, 7))
sketch3.addConstraint(Sketcher.Constraint("Horizontal", 2, 2, 5, 2))
sketch3.addConstraint(Sketcher.Constraint("Horizontal", 1, 2, 6, 2))
sketch3.addConstraint(Sketcher.Constraint("Vertical", 4, 2, 7, 2))
sketch3.addConstraint(Sketcher.Constraint("DistanceY", -1, 1, 0, 2, 16.0))
sketch3.addConstraint(Sketcher.Constraint("DistanceX", -1, 1, 5, 2, 32.0))
sketch3.addConstraint(Sketcher.Constraint("DistanceX", 2, 2, 5, 2, 24.0))
sketch3.addConstraint(Sketcher.Constraint("DistanceY", 2, 2, 2, 1, 10.3432))
pocket2 = body.newObject("PartDesign::Pocket", "Pocket001")
pocket2.Profile = sketch3
pocket2.Type = "ThroughAll"

# Sketch on XY plane
sketch4 = body.newObject("Sketcher::SketchObject", "Sketch003")
sketch4.AttachmentSupport = (doc.getObject("XY_Plane"), [""])
sketch4.MapMode = "FlatFace"
sketch4.AttachmentOffset = App.Placement(Vector(0, 0, 100), App.Rotation())
sketch4.addGeometry(Part.LineSegment(Vector(34.5356, 9, 0), Vector(29.5, 14.0356, 0)), False)
sketch4.addGeometry(Part.LineSegment(Vector(29.5, 14.0356, 0), Vector(29.5, 13.3285, 0)), False)
sketch4.addGeometry(Part.LineSegment(Vector(29.5, 13.3285, 0), Vector(33.8285, 9, 0)), False)
sketch4.addGeometry(Part.LineSegment(Vector(33.8285, 9, 0), Vector(34.5356, 9, 0)), False)
sketch4.addGeometry(Part.LineSegment(Vector(45.4644, 9, 0), Vector(46.1715, 9, 0)), False)
sketch4.addGeometry(Part.LineSegment(Vector(46.1715, 9, 0), Vector(50.5, 13.3285, 0)), False)
sketch4.addGeometry(Part.LineSegment(Vector(50.5, 13.3285, 0), Vector(50.5, 14.0356, 0)), False)
sketch4.addGeometry(Part.LineSegment(Vector(50.5, 14.0356, 0), Vector(45.4644, 9, 0)), False)
sketch4.addGeometry(Part.LineSegment(Vector(49, 5.4645, 0), Vector(54.0355, 10.5, 0)), False)
sketch4.addGeometry(Part.LineSegment(Vector(54.0355, 10.5, 0), Vector(53.3283, 10.5, 0)), False)
sketch4.addGeometry(Part.LineSegment(Vector(53.3283, 10.5, 0), Vector(49, 6.1717, 0)), False)
sketch4.addGeometry(Part.LineSegment(Vector(49, 6.1717, 0), Vector(49, 5.4645, 0)), False)
sketch4.addGeometry(Part.LineSegment(Vector(49, -5.4645, 0), Vector(49, -6.1717, 0)), False)
sketch4.addGeometry(Part.LineSegment(Vector(49, -6.1717, 0), Vector(53.3283, -10.5, 0)), False)
sketch4.addGeometry(Part.LineSegment(Vector(53.3283, -10.5, 0), Vector(54.0355, -10.5, 0)), False)
sketch4.addGeometry(Part.LineSegment(Vector(54.0355, -10.5, 0), Vector(49, -5.4645, 0)), False)
sketch4.addGeometry(Part.LineSegment(Vector(45.4644, -9, 0), Vector(50.5, -14.0356, 0)), False)
sketch4.addGeometry(Part.LineSegment(Vector(50.5, -14.0356, 0), Vector(50.5, -13.3285, 0)), False)
sketch4.addGeometry(Part.LineSegment(Vector(50.5, -13.3285, 0), Vector(46.1715, -9, 0)), False)
sketch4.addGeometry(Part.LineSegment(Vector(46.1715, -9, 0), Vector(45.4644, -9, 0)), False)
sketch4.addGeometry(Part.LineSegment(Vector(34.5356, -9, 0), Vector(33.8285, -9, 0)), False)
sketch4.addGeometry(Part.LineSegment(Vector(33.8285, -9, 0), Vector(29.5, -13.3285, 0)), False)
sketch4.addGeometry(Part.LineSegment(Vector(29.5, -13.3285, 0), Vector(29.5, -14.0356, 0)), False)
sketch4.addGeometry(Part.LineSegment(Vector(29.5, -14.0356, 0), Vector(34.5356, -9, 0)), False)
sketch4.addConstraint(Sketcher.Constraint("Coincident", 0, 2, 1, 1))
sketch4.addConstraint(Sketcher.Constraint("Coincident", 1, 2, 2, 1))
sketch4.addConstraint(Sketcher.Constraint("Coincident", 2, 2, 3, 1))
sketch4.addConstraint(Sketcher.Constraint("Coincident", 3, 2, 0, 1))
sketch4.addConstraint(Sketcher.Constraint("Coincident", 4, 2, 5, 1))
sketch4.addConstraint(Sketcher.Constraint("Coincident", 5, 2, 6, 1))
sketch4.addConstraint(Sketcher.Constraint("Coincident", 6, 2, 7, 1))
sketch4.addConstraint(Sketcher.Constraint("Coincident", 7, 2, 4, 1))
sketch4.addConstraint(Sketcher.Constraint("Coincident", 8, 2, 9, 1))
sketch4.addConstraint(Sketcher.Constraint("Coincident", 9, 2, 10, 1))
sketch4.addConstraint(Sketcher.Constraint("Coincident", 10, 2, 11, 1))
sketch4.addConstraint(Sketcher.Constraint("Coincident", 11, 2, 8, 1))
sketch4.addConstraint(Sketcher.Constraint("Coincident", 12, 2, 13, 1))
sketch4.addConstraint(Sketcher.Constraint("Coincident", 13, 2, 14, 1))
sketch4.addConstraint(Sketcher.Constraint("Coincident", 14, 2, 15, 1))
sketch4.addConstraint(Sketcher.Constraint("Coincident", 15, 2, 12, 1))
sketch4.addConstraint(Sketcher.Constraint("Coincident", 16, 2, 17, 1))
sketch4.addConstraint(Sketcher.Constraint("Coincident", 17, 2, 18, 1))
sketch4.addConstraint(Sketcher.Constraint("Coincident", 18, 2, 19, 1))
sketch4.addConstraint(Sketcher.Constraint("Coincident", 19, 2, 16, 1))
sketch4.addConstraint(Sketcher.Constraint("Coincident", 20, 2, 21, 1))
sketch4.addConstraint(Sketcher.Constraint("Coincident", 21, 2, 22, 1))
sketch4.addConstraint(Sketcher.Constraint("Coincident", 22, 2, 23, 1))
sketch4.addConstraint(Sketcher.Constraint("Coincident", 23, 2, 20, 1))
sketch4.addConstraint(Sketcher.Constraint("Vertical", 1))
sketch4.addConstraint(Sketcher.Constraint("Horizontal", 3))
sketch4.addConstraint(Sketcher.Constraint("Horizontal", 4))
sketch4.addConstraint(Sketcher.Constraint("Vertical", 6))
sketch4.addConstraint(Sketcher.Constraint("Horizontal", 9))
sketch4.addConstraint(Sketcher.Constraint("Vertical", 11))
sketch4.addConstraint(Sketcher.Constraint("Vertical", 12))
sketch4.addConstraint(Sketcher.Constraint("Horizontal", 14))
sketch4.addConstraint(Sketcher.Constraint("Vertical", 17))
sketch4.addConstraint(Sketcher.Constraint("Horizontal", 19))
sketch4.addConstraint(Sketcher.Constraint("Horizontal", 20))
sketch4.addConstraint(Sketcher.Constraint("Vertical", 22))
sketch4.addConstraint(Sketcher.Constraint("Symmetric", 10, 2, 12, 2, -1))
sketch4.addConstraint(Sketcher.Constraint("Symmetric", 9, 2, 13, 2, -1))
sketch4.addConstraint(Sketcher.Constraint("Symmetric", 6, 2, 16, 2, -1))
sketch4.addConstraint(Sketcher.Constraint("Symmetric", 4, 2, 18, 2, -1))
sketch4.addConstraint(Sketcher.Constraint("Symmetric", 2, 2, 20, 2, -1))
sketch4.addConstraint(Sketcher.Constraint("Symmetric", 1, 2, 21, 2, -1))
sketch4.addConstraint(Sketcher.Constraint("Parallel", 0, 2))
sketch4.addConstraint(Sketcher.Constraint("Perpendicular", 2, 5))
sketch4.addConstraint(Sketcher.Constraint("Parallel", 5, 7))
sketch4.addConstraint(Sketcher.Constraint("Parallel", 7, 8))
sketch4.addConstraint(Sketcher.Constraint("Parallel", 8, 10))
sketch4.addConstraint(Sketcher.Constraint("Perpendicular", 10, 13))
sketch4.addConstraint(Sketcher.Constraint("Parallel", 13, 15))
sketch4.addConstraint(Sketcher.Constraint("Parallel", 15, 16))
sketch4.addConstraint(Sketcher.Constraint("Parallel", 16, 18))
sketch4.addConstraint(Sketcher.Constraint("Parallel", 21, 23))
sketch4.addConstraint(Sketcher.Constraint("Horizontal", 3, 2, 4, 2))
sketch4.addConstraint(Sketcher.Constraint("Horizontal", 1, 2, 5, 2))
sketch4.addConstraint(Sketcher.Constraint("Horizontal", 0, 2, 6, 2))
sketch4.addConstraint(Sketcher.Constraint("Horizontal", 16, 2, 22, 2))
sketch4.addConstraint(Sketcher.Constraint("Vertical", 8, 2, 14, 2))
sketch4.addConstraint(Sketcher.Constraint("Equal", 4, 9))
sketch4.addConstraint(Sketcher.Constraint("Equal", 7, 8))
sketch4.addConstraint(Sketcher.Constraint("DistanceY", -1, 1, 2, 2, 9.0))
sketch4.addConstraint(Sketcher.Constraint("DistanceX", -1, 1, 10, 2, 49.0))
sketch4.addConstraint(Sketcher.Constraint("DistanceX", 1, 2, 5, 2, 21.0))
sketch4.addConstraint(Sketcher.Constraint("DistanceY", 13, 2, 9, 2, 21.0))
sketch4.addConstraint(Sketcher.Constraint("DistanceX", -1, 1, 0, 2, 29.5))
sketch4.addConstraint(Sketcher.Constraint("DistanceX", 3, 1, 3, 2, 0.707))
sketch4.addConstraint(Sketcher.Constraint("DistanceX", 3, 2, 4, 2, 11.636))
pocket3 = body.newObject("PartDesign::Pocket", "Pocket002")
pocket3.Profile = sketch4
pocket3.Type = "ThroughAll"

doc.recompute()
